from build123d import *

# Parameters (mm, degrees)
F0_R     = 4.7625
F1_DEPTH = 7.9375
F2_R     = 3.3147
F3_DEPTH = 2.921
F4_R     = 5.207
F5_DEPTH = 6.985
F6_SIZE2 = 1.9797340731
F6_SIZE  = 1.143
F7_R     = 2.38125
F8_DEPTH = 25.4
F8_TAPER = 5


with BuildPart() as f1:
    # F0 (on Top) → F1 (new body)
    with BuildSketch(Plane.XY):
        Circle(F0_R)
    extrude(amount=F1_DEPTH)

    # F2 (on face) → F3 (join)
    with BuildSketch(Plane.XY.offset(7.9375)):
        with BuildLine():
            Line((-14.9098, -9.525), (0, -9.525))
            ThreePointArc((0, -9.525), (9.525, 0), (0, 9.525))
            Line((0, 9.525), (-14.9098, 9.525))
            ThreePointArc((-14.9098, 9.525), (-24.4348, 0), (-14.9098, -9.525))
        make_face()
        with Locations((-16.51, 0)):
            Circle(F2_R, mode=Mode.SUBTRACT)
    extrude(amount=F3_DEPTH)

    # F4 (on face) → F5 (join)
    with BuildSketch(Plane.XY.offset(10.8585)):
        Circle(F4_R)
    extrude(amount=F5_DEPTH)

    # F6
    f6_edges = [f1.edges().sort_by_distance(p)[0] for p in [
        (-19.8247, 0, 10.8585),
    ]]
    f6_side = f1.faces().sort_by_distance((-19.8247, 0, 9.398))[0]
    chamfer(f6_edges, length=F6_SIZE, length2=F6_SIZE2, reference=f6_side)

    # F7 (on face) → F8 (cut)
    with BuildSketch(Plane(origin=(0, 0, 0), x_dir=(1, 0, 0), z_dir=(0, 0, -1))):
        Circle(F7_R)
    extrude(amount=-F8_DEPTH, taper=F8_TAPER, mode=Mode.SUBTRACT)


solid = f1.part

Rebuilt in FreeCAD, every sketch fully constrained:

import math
import FreeCAD as App
import Part
import Sketcher
Q = App.Units.Quantity


def edges_at(feature, points):
    """Names of the edges that pass closest to the given points."""
    edges = feature.Shape.Edges
    near = lambda p: min(range(len(edges)), key=lambda i: edges[i].distToShape(Part.Vertex(*p))[0])
    return sorted({f"Edge{near(p) + 1}" for p in points})

doc = App.newDocument("Part")
body = doc.addObject("PartDesign::Body", "Body")

sketch1 = body.newObject("Sketcher::SketchObject", "Sketch")
sketch1.AttachmentSupport = (doc.getObject("XY_Plane"), [""])
sketch1.MapMode = "FlatFace"
sketch1.addGeometry(Part.Circle(App.Vector(0, 0, 0), App.Vector(0, 0, 1), 4.8), False)
sketch1.addConstraint([
    Sketcher.Constraint("Coincident", 0, 3, -1, 1),
    Sketcher.Constraint("Diameter", 0, Q("0.375 in")),
])
pad1 = body.newObject("PartDesign::Pad", "Pad")
pad1.Profile = sketch1
pad1.Length = Q("0.3125 in")

sketch2 = body.newObject("Sketcher::SketchObject", "Sketch001")
sketch2.AttachmentSupport = (doc.getObject("XY_Plane"), [""])
sketch2.MapMode = "FlatFace"
sketch2.AttachmentOffset = App.Placement(App.Vector(0, 0, 0.3125 * 25.4), App.Rotation())
sketch2.addGeometry([
    Part.LineSegment(App.Vector(-14.9, -9.5, 0), App.Vector(0, -9.5, 0)),
    Part.ArcOfCircle(Part.Circle(App.Vector(0, 0, 0), App.Vector(0, 0, 1), 9.5), math.radians(-90), math.radians(90)),
    Part.LineSegment(App.Vector(0, 9.5, 0), App.Vector(-14.9, 9.5, 0)),
    Part.ArcOfCircle(Part.Circle(App.Vector(-14.9, 0, 0), App.Vector(0, 0, 1), 9.5), math.radians(90), math.radians(270)),
    Part.Circle(App.Vector(-16.5, 0, 0), App.Vector(0, 0, 1), 3.3),
], False)
sketch2.addConstraint([
    Sketcher.Constraint("Tangent", 0, 2, 1, 1),
    Sketcher.Constraint("Tangent", 1, 2, 2, 1),
    Sketcher.Constraint("Tangent", 2, 2, 3, 1),
    Sketcher.Constraint("Tangent", 3, 2, 0, 1),
    Sketcher.Constraint("Horizontal", 0),
    Sketcher.Constraint("Horizontal", 2),
    Sketcher.Constraint("Coincident", 1, 3, -1, 1),
    Sketcher.Constraint("PointOnObject", 4, 3, -1),
    Sketcher.Constraint("Diameter", 4, Q("0.261 in")),
    Sketcher.Constraint("Radius", 1, Q("0.375 in")),
    Sketcher.Constraint("DistanceX", 0, 1, 0, 2, Q("0.587 in")),
    Sketcher.Constraint("DistanceX", 4, 3, -1, 1, Q("0.65 in")),
])
pad2 = body.newObject("PartDesign::Pad", "Pad001")
pad2.Profile = sketch2
pad2.Length = Q("0.115 in")

sketch3 = body.newObject("Sketcher::SketchObject", "Sketch002")
sketch3.AttachmentSupport = (doc.getObject("XY_Plane"), [""])
sketch3.MapMode = "FlatFace"
sketch3.AttachmentOffset = App.Placement(App.Vector(0, 0, 0.4275 * 25.4), App.Rotation())
sketch3.addGeometry(Part.Circle(App.Vector(0, 0, 0), App.Vector(0, 0, 1), 5), False)
sketch3.addConstraint([
    Sketcher.Constraint("Coincident", 0, 3, -1, 1),
    Sketcher.Constraint("Diameter", 0, Q("0.41 in")),
])
pad3 = body.newObject("PartDesign::Pad", "Pad002")
pad3.Profile = sketch3
pad3.Length = Q("0.275 in")
doc.recompute()

chamfer = body.newObject("PartDesign::Chamfer", "Chamfer")
chamfer.Base = (pad3, edges_at(pad3, [(-19.825, 0, 10.858)]))
chamfer.ChamferType = "Two distances"
chamfer.Size = Q("0.045 in")
chamfer.Size2 = 1.979734

sketch4 = body.newObject("Sketcher::SketchObject", "Sketch003")
sketch4.AttachmentSupport = (doc.getObject("XY_Plane"), [""])
sketch4.MapMode = "FlatFace"
sketch4.addGeometry(Part.Circle(App.Vector(0, 0, 0), App.Vector(0, 0, 1), 2.4), False)
sketch4.addConstraint([
    Sketcher.Constraint("Coincident", 0, 3, -1, 1),
    Sketcher.Constraint("Diameter", 0, Q("0.1875 in")),
])
pocket1 = body.newObject("PartDesign::Pocket", "Pocket")
pocket1.Profile = sketch4
pocket1.Length = Q("1 in")
pocket1.Reversed = True
pocket1.TaperAngle = -5

doc.recompute()
